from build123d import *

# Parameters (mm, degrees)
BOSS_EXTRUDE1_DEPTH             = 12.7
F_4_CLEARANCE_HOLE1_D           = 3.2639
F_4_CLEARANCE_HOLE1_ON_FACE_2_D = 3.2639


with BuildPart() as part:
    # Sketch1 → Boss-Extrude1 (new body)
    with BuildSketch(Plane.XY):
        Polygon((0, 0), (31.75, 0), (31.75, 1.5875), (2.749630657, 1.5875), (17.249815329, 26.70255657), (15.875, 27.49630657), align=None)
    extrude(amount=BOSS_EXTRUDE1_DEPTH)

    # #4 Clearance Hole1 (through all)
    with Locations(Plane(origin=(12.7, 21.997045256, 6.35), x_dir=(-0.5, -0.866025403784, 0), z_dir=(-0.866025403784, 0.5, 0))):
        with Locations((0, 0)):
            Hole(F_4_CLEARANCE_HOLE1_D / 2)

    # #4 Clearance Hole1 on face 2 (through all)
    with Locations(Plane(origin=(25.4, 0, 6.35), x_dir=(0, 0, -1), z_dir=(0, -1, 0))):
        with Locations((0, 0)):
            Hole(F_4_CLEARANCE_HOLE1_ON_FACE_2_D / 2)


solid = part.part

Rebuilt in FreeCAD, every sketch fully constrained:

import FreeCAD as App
import Part
import Sketcher
Q = App.Units.Quantity


def add_polygon(sketch, points):
    """Adds a closed chain of lines whose ends are joined by coincident constraints."""
    first, n = sketch.GeometryCount, len(points)
    for a, b in zip(points, points[1:] + points[:1]):
        sketch.addGeometry(Part.LineSegment(App.Vector(*a, 0), App.Vector(*b, 0)), False)
    for i in range(n):
        sketch.addConstraint(Sketcher.Constraint("Coincident", first + i, 2, first + (i + 1) % n, 1))

doc = App.newDocument("Part")
body = doc.addObject("PartDesign::Body", "Body")

# Sketch on XY plane
sketch1 = body.newObject("Sketcher::SketchObject", "Sketch")
sketch1.AttachmentSupport = (doc.getObject("XY_Plane"), [""])
sketch1.MapMode = "FlatFace"
add_polygon(sketch1, [(0, 0), (31.8, 0), (31.8, 1.6), (2.7, 1.6), (17.2, 26.7), (15.9, 27.5)])  # lines 0-5
sketch1.addConstraint([
    Sketcher.Constraint("Horizontal", 0),
    Sketcher.Constraint("Vertical", 1),
    Sketcher.Constraint("Horizontal", 2),
    Sketcher.Constraint("Coincident", 5, 2, -1, 1),
    Sketcher.Constraint("Perpendicular", 3, 4),
    Sketcher.Constraint("Perpendicular", 4, 5),
    Sketcher.Constraint("Angle", 3, Q("60 deg")),
    Sketcher.Constraint("DistanceX", 0, 1, 0, 2, Q("1.25 in")),
    Sketcher.Constraint("Distance", 5, Q("1.25 in")),
    Sketcher.Constraint("DistanceY", 1, 1, 1, 2, Q("0.0625 in")),
    Sketcher.Constraint("Distance", 4, Q("0.0625 in")),
])
pad1 = body.newObject("PartDesign::Pad", "Pad")
pad1.Profile = sketch1
pad1.Length = Q("0.5 in")

# Sketch on an angled plane
sketch2 = body.newObject("Sketcher::SketchObject", "Sketch001")
sketch2.Placement = App.Placement(App.Vector(0, 0, 0), App.Rotation(App.Vector(-0.5, -0.866025404, 0), App.Vector(0, 0, 1), App.Vector(-0.866025404, 0.5, 0), "ZXY"))
sketch2.addGeometry(Part.Circle(App.Vector(-25.4, 6.4, 0), App.Vector(0, 0, 1), 1.6), False)
sketch2.addConstraint([
    Sketcher.Constraint("DistanceX", 0, 3, -1, 1, Q("1 in")),
    Sketcher.Constraint("Diameter", 0, Q("0.1285 in")),
    Sketcher.Constraint("DistanceY", -1, 1, 0, 3, Q("0.25 in")),
])
doc.recompute()
hole = body.newObject("PartDesign::Hole", "Hole")
hole.Profile = sketch2
hole.ThreadType = "None"
hole.Diameter = Q("0.1285 in")
hole.DepthType = "ThroughAll"

# Sketch on XZ plane
sketch3 = body.newObject("Sketcher::SketchObject", "Sketch002")
sketch3.AttachmentSupport = (doc.getObject("XZ_Plane"), [""])
sketch3.MapMode = "FlatFace"
sketch3.addGeometry(Part.Circle(App.Vector(25.4, 6.3, 0), App.Vector(0, 0, 1), 1.6), False)
sketch3.addConstraint([
    Sketcher.Constraint("DistanceX", -1, 1, 0, 3, Q("1 in")),
    Sketcher.Constraint("Diameter", 0, Q("0.1285 in")),
    Sketcher.Constraint("DistanceY", -1, 1, 0, 3, Q("0.25 in")),
])
doc.recompute()
hole2 = body.newObject("PartDesign::Hole", "Hole001")
hole2.Profile = sketch3
hole2.ThreadType = "None"
hole2.Diameter = Q("0.1285 in")
hole2.DepthType = "ThroughAll"

doc.recompute()
